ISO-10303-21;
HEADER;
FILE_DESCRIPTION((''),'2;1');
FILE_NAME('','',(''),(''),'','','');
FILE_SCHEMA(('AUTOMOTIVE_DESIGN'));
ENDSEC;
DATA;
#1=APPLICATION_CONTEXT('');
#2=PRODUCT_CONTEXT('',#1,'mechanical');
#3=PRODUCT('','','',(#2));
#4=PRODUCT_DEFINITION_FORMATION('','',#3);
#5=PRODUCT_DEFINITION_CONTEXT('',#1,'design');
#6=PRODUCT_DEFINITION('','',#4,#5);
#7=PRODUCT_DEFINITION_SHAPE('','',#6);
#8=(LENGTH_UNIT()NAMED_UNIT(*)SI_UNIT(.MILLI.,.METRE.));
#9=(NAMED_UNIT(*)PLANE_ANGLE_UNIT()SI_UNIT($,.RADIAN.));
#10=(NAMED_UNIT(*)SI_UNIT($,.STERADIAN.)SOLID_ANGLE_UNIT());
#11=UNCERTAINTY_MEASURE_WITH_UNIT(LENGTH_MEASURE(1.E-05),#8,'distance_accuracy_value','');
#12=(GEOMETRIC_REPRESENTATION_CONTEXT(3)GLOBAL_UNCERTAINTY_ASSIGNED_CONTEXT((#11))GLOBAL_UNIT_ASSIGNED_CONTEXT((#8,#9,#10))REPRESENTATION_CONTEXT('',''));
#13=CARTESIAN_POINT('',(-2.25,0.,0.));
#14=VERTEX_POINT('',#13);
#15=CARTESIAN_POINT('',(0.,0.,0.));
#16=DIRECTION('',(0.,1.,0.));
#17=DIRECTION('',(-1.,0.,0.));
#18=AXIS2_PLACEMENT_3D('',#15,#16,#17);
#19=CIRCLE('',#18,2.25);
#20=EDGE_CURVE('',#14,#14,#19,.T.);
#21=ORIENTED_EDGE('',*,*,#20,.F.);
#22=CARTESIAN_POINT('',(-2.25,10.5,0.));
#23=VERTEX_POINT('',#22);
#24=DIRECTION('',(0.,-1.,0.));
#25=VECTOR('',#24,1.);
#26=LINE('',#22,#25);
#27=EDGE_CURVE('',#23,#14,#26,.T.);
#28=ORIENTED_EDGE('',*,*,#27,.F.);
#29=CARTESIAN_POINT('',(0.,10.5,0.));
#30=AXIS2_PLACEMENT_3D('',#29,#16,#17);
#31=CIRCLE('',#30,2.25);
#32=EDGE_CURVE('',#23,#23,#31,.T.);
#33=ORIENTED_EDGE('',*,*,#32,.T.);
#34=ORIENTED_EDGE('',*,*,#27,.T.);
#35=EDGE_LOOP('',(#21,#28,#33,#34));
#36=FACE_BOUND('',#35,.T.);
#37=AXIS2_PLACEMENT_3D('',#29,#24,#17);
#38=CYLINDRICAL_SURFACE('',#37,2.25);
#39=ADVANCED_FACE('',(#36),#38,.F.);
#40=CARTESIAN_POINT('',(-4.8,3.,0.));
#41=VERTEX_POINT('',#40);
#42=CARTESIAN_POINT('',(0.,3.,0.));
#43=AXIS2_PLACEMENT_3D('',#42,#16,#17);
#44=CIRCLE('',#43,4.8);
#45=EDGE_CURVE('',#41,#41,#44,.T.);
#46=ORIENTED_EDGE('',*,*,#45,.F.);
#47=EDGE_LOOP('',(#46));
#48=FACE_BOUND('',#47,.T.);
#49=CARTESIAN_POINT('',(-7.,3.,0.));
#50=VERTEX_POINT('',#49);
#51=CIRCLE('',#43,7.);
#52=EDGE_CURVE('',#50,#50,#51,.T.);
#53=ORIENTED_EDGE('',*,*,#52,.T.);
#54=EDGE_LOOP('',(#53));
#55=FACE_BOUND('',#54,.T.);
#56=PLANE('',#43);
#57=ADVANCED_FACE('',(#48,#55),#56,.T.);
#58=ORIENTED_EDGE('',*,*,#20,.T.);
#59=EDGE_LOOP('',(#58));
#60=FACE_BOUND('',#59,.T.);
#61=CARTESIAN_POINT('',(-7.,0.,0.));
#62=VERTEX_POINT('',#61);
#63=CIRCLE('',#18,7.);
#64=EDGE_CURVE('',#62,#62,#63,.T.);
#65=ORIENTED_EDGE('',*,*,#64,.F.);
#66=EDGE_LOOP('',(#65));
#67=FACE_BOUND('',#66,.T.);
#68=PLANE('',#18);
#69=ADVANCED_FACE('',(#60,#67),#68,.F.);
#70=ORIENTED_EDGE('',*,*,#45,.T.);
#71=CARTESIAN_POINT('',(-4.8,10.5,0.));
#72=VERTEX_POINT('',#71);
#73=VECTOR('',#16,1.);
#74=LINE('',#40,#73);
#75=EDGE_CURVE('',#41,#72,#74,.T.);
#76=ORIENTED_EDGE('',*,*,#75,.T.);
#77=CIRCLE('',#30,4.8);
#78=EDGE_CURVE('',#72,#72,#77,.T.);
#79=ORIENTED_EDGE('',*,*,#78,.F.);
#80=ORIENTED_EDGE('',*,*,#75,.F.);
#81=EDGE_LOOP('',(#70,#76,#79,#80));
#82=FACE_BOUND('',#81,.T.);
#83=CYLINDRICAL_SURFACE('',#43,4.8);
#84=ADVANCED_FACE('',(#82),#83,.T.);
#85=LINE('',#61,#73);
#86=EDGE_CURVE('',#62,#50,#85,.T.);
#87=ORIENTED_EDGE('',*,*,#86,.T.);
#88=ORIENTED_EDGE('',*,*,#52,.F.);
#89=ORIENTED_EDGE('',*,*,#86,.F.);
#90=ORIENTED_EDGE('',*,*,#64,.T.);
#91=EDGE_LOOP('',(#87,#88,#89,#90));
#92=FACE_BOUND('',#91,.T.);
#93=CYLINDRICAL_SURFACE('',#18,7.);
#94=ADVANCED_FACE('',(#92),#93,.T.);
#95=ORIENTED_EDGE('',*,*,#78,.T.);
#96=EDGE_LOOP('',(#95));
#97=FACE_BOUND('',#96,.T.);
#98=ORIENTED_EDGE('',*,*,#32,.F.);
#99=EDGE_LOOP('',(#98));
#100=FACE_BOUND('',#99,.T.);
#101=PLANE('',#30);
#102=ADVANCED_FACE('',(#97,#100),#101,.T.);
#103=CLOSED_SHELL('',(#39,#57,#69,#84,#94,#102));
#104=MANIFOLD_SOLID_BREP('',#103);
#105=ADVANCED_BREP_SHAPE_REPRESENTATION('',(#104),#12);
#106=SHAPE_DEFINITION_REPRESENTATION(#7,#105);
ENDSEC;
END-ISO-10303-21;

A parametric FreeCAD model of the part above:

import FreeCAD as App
import Part
import Sketcher

V = App.Vector


def add_polygon(sketch, points):
    """Adds a closed chain of lines whose ends are joined by coincident constraints."""
    first, n = sketch.GeometryCount, len(points)
    for a, b in zip(points, points[1:] + points[:1]):
        sketch.addGeometry(Part.LineSegment(App.Vector(*a, 0), App.Vector(*b, 0)), False)
    for i in range(n):
        sketch.addConstraint(Sketcher.Constraint("Coincident", first + i, 2, first + (i + 1) % n, 1))

doc = App.newDocument("Part")
body = doc.addObject("PartDesign::Body", "Body")

sketch1 = doc.addObject("Sketcher::SketchObject", "Sketch")
body.addObject(sketch1)
sketch1.AttachmentSupport = (doc.XY_Plane, [""])
sketch1.MapMode = "FlatFace"
add_polygon(sketch1, [(-2.25, 0), (-2.25, 10.5), (-4.8, 10.5), (-4.8, 3), (-7, 3), (-7, 0)])
sketch1.addConstraint([
    Sketcher.Constraint("Vertical", 0),
    Sketcher.Constraint("Horizontal", 1),
    Sketcher.Constraint("Vertical", 2),
    Sketcher.Constraint("Horizontal", 3),
    Sketcher.Constraint("Vertical", 4),
    Sketcher.Constraint("Horizontal", 5),
    Sketcher.Constraint("PointOnObject", 4, 2, -1),
    Sketcher.Constraint("DistanceY", 4, 2, 4, 1, 3.0),
    Sketcher.Constraint("DistanceY", 2, 2, 2, 1, 7.5),
    Sketcher.Constraint("DistanceX", 3, 2, -1, 1, 7.0),
    Sketcher.Constraint("DistanceX", 1, 2, -1, 1, 4.8),
    Sketcher.Constraint("DistanceX", 0, 2, -1, 1, 2.25),
])
revolution = doc.addObject("PartDesign::Revolution", "Revolution")
body.addObject(revolution)
revolution.Profile = sketch1
revolution.ReferenceAxis = (sketch1, ["V_Axis"])
revolution.Angle = 360

doc.recompute()
